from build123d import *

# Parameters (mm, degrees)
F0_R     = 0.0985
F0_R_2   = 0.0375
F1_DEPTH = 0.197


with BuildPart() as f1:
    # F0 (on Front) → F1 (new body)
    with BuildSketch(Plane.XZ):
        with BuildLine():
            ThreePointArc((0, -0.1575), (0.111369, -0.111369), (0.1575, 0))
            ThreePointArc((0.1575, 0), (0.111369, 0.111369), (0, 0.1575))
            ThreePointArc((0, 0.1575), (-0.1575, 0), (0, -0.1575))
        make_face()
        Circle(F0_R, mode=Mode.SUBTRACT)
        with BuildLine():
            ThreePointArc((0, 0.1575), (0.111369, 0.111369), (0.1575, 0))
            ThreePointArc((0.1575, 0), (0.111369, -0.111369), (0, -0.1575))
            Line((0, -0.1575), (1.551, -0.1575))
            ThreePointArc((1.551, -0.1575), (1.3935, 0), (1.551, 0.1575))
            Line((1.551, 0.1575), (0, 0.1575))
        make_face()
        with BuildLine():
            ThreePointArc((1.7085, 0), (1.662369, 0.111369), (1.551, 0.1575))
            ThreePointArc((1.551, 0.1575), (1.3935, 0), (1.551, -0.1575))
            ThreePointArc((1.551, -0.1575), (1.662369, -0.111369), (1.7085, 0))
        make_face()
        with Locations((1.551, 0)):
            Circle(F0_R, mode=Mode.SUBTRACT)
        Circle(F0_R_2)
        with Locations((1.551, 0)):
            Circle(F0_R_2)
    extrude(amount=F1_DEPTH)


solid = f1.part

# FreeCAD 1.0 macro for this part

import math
import FreeCAD as App
import Part
import Sketcher

doc = App.newDocument("Part")
body = doc.addObject("PartDesign::Body", "Body")
body.AllowCompound = True

# Sketch on XZ plane
sketch1 = body.newObject("Sketcher::SketchObject", "Sketch")
sketch1.AttachmentSupport = (doc.getObject("XZ_Plane"), [""])
sketch1.MapMode = "FlatFace"
sketch1.addGeometry([
    Part.ArcOfCircle(Part.Circle(App.Vector(0, 0, 0), App.Vector(0, 0, 1), 0.1575), math.radians(90), math.radians(270)),  # 0
    Part.LineSegment(App.Vector(0, -0.1575, 0), App.Vector(1.551, -0.1575, 0)),  # 1
    Part.ArcOfCircle(Part.Circle(App.Vector(1.550999, 0.000001, 0), App.Vector(0, 0, 1), 0.157501), math.radians(-89.999605), math.radians(-0.000395)),  # 2
    Part.ArcOfCircle(Part.Circle(App.Vector(1.550999, -0.000001, 0), App.Vector(0, 0, 1), 0.157501), math.radians(0.000395), math.radians(89.999605)),  # 3
    Part.LineSegment(App.Vector(1.551, 0.1575, 0), App.Vector(0, 0.1575, 0)),  # 4
    Part.Circle(App.Vector(0, 0, 0), App.Vector(0, 0, 1), 0.0985),  # 5
    Part.Circle(App.Vector(1.551, 0, 0), App.Vector(0, 0, 1), 0.0985),  # 6
    Part.Circle(App.Vector(0, 0, 0), App.Vector(0, 0, 1), 0.0375),  # 7
    Part.Circle(App.Vector(1.551, 0, 0), App.Vector(0, 0, 1), 0.0375),  # 8
], False)
sketch1.addConstraint([
    Sketcher.Constraint("Tangent", 0, 2, 1, 1),
    Sketcher.Constraint("Coincident", 1, 2, 2, 1),
    Sketcher.Constraint("Coincident", 2, 2, 3, 1),
    Sketcher.Constraint("Coincident", 3, 2, 4, 1),
    Sketcher.Constraint("Tangent", 4, 2, 0, 1),
    Sketcher.Constraint("Horizontal", 1),
    Sketcher.Constraint("Horizontal", 4),
    Sketcher.Constraint("Coincident", 0, 3, -1, 1),
    Sketcher.Constraint("Coincident", 5, 3, -1, 1),
    Sketcher.Constraint("Coincident", 7, 3, -1, 1),
    Sketcher.Constraint("Coincident", 3, 3, 2, 3),
    Sketcher.Constraint("Coincident", 6, 3, 2, 3),
    Sketcher.Constraint("Coincident", 8, 3, 2, 3),
    Sketcher.Constraint("Equal", 5, 6),
    Sketcher.Constraint("Equal", 7, 8),
    Sketcher.Constraint("PointOnObject", 2, 2, -1),
    Sketcher.Constraint("Vertical", 8, 3, 1, 2),
    Sketcher.Constraint("Vertical", 1, 2, 3, 2),
    Sketcher.Constraint("Diameter", 5, 0.197),
    Sketcher.Constraint("Diameter", 7, 0.075),
    Sketcher.Constraint("Radius", 0, 0.1575),
    Sketcher.Constraint("DistanceX", 1, 1, 1, 2, 1.551),
])
pad1 = body.newObject("PartDesign::Pad", "Pad")
pad1.Profile = sketch1
pad1.Length = 0.197

doc.recompute()
